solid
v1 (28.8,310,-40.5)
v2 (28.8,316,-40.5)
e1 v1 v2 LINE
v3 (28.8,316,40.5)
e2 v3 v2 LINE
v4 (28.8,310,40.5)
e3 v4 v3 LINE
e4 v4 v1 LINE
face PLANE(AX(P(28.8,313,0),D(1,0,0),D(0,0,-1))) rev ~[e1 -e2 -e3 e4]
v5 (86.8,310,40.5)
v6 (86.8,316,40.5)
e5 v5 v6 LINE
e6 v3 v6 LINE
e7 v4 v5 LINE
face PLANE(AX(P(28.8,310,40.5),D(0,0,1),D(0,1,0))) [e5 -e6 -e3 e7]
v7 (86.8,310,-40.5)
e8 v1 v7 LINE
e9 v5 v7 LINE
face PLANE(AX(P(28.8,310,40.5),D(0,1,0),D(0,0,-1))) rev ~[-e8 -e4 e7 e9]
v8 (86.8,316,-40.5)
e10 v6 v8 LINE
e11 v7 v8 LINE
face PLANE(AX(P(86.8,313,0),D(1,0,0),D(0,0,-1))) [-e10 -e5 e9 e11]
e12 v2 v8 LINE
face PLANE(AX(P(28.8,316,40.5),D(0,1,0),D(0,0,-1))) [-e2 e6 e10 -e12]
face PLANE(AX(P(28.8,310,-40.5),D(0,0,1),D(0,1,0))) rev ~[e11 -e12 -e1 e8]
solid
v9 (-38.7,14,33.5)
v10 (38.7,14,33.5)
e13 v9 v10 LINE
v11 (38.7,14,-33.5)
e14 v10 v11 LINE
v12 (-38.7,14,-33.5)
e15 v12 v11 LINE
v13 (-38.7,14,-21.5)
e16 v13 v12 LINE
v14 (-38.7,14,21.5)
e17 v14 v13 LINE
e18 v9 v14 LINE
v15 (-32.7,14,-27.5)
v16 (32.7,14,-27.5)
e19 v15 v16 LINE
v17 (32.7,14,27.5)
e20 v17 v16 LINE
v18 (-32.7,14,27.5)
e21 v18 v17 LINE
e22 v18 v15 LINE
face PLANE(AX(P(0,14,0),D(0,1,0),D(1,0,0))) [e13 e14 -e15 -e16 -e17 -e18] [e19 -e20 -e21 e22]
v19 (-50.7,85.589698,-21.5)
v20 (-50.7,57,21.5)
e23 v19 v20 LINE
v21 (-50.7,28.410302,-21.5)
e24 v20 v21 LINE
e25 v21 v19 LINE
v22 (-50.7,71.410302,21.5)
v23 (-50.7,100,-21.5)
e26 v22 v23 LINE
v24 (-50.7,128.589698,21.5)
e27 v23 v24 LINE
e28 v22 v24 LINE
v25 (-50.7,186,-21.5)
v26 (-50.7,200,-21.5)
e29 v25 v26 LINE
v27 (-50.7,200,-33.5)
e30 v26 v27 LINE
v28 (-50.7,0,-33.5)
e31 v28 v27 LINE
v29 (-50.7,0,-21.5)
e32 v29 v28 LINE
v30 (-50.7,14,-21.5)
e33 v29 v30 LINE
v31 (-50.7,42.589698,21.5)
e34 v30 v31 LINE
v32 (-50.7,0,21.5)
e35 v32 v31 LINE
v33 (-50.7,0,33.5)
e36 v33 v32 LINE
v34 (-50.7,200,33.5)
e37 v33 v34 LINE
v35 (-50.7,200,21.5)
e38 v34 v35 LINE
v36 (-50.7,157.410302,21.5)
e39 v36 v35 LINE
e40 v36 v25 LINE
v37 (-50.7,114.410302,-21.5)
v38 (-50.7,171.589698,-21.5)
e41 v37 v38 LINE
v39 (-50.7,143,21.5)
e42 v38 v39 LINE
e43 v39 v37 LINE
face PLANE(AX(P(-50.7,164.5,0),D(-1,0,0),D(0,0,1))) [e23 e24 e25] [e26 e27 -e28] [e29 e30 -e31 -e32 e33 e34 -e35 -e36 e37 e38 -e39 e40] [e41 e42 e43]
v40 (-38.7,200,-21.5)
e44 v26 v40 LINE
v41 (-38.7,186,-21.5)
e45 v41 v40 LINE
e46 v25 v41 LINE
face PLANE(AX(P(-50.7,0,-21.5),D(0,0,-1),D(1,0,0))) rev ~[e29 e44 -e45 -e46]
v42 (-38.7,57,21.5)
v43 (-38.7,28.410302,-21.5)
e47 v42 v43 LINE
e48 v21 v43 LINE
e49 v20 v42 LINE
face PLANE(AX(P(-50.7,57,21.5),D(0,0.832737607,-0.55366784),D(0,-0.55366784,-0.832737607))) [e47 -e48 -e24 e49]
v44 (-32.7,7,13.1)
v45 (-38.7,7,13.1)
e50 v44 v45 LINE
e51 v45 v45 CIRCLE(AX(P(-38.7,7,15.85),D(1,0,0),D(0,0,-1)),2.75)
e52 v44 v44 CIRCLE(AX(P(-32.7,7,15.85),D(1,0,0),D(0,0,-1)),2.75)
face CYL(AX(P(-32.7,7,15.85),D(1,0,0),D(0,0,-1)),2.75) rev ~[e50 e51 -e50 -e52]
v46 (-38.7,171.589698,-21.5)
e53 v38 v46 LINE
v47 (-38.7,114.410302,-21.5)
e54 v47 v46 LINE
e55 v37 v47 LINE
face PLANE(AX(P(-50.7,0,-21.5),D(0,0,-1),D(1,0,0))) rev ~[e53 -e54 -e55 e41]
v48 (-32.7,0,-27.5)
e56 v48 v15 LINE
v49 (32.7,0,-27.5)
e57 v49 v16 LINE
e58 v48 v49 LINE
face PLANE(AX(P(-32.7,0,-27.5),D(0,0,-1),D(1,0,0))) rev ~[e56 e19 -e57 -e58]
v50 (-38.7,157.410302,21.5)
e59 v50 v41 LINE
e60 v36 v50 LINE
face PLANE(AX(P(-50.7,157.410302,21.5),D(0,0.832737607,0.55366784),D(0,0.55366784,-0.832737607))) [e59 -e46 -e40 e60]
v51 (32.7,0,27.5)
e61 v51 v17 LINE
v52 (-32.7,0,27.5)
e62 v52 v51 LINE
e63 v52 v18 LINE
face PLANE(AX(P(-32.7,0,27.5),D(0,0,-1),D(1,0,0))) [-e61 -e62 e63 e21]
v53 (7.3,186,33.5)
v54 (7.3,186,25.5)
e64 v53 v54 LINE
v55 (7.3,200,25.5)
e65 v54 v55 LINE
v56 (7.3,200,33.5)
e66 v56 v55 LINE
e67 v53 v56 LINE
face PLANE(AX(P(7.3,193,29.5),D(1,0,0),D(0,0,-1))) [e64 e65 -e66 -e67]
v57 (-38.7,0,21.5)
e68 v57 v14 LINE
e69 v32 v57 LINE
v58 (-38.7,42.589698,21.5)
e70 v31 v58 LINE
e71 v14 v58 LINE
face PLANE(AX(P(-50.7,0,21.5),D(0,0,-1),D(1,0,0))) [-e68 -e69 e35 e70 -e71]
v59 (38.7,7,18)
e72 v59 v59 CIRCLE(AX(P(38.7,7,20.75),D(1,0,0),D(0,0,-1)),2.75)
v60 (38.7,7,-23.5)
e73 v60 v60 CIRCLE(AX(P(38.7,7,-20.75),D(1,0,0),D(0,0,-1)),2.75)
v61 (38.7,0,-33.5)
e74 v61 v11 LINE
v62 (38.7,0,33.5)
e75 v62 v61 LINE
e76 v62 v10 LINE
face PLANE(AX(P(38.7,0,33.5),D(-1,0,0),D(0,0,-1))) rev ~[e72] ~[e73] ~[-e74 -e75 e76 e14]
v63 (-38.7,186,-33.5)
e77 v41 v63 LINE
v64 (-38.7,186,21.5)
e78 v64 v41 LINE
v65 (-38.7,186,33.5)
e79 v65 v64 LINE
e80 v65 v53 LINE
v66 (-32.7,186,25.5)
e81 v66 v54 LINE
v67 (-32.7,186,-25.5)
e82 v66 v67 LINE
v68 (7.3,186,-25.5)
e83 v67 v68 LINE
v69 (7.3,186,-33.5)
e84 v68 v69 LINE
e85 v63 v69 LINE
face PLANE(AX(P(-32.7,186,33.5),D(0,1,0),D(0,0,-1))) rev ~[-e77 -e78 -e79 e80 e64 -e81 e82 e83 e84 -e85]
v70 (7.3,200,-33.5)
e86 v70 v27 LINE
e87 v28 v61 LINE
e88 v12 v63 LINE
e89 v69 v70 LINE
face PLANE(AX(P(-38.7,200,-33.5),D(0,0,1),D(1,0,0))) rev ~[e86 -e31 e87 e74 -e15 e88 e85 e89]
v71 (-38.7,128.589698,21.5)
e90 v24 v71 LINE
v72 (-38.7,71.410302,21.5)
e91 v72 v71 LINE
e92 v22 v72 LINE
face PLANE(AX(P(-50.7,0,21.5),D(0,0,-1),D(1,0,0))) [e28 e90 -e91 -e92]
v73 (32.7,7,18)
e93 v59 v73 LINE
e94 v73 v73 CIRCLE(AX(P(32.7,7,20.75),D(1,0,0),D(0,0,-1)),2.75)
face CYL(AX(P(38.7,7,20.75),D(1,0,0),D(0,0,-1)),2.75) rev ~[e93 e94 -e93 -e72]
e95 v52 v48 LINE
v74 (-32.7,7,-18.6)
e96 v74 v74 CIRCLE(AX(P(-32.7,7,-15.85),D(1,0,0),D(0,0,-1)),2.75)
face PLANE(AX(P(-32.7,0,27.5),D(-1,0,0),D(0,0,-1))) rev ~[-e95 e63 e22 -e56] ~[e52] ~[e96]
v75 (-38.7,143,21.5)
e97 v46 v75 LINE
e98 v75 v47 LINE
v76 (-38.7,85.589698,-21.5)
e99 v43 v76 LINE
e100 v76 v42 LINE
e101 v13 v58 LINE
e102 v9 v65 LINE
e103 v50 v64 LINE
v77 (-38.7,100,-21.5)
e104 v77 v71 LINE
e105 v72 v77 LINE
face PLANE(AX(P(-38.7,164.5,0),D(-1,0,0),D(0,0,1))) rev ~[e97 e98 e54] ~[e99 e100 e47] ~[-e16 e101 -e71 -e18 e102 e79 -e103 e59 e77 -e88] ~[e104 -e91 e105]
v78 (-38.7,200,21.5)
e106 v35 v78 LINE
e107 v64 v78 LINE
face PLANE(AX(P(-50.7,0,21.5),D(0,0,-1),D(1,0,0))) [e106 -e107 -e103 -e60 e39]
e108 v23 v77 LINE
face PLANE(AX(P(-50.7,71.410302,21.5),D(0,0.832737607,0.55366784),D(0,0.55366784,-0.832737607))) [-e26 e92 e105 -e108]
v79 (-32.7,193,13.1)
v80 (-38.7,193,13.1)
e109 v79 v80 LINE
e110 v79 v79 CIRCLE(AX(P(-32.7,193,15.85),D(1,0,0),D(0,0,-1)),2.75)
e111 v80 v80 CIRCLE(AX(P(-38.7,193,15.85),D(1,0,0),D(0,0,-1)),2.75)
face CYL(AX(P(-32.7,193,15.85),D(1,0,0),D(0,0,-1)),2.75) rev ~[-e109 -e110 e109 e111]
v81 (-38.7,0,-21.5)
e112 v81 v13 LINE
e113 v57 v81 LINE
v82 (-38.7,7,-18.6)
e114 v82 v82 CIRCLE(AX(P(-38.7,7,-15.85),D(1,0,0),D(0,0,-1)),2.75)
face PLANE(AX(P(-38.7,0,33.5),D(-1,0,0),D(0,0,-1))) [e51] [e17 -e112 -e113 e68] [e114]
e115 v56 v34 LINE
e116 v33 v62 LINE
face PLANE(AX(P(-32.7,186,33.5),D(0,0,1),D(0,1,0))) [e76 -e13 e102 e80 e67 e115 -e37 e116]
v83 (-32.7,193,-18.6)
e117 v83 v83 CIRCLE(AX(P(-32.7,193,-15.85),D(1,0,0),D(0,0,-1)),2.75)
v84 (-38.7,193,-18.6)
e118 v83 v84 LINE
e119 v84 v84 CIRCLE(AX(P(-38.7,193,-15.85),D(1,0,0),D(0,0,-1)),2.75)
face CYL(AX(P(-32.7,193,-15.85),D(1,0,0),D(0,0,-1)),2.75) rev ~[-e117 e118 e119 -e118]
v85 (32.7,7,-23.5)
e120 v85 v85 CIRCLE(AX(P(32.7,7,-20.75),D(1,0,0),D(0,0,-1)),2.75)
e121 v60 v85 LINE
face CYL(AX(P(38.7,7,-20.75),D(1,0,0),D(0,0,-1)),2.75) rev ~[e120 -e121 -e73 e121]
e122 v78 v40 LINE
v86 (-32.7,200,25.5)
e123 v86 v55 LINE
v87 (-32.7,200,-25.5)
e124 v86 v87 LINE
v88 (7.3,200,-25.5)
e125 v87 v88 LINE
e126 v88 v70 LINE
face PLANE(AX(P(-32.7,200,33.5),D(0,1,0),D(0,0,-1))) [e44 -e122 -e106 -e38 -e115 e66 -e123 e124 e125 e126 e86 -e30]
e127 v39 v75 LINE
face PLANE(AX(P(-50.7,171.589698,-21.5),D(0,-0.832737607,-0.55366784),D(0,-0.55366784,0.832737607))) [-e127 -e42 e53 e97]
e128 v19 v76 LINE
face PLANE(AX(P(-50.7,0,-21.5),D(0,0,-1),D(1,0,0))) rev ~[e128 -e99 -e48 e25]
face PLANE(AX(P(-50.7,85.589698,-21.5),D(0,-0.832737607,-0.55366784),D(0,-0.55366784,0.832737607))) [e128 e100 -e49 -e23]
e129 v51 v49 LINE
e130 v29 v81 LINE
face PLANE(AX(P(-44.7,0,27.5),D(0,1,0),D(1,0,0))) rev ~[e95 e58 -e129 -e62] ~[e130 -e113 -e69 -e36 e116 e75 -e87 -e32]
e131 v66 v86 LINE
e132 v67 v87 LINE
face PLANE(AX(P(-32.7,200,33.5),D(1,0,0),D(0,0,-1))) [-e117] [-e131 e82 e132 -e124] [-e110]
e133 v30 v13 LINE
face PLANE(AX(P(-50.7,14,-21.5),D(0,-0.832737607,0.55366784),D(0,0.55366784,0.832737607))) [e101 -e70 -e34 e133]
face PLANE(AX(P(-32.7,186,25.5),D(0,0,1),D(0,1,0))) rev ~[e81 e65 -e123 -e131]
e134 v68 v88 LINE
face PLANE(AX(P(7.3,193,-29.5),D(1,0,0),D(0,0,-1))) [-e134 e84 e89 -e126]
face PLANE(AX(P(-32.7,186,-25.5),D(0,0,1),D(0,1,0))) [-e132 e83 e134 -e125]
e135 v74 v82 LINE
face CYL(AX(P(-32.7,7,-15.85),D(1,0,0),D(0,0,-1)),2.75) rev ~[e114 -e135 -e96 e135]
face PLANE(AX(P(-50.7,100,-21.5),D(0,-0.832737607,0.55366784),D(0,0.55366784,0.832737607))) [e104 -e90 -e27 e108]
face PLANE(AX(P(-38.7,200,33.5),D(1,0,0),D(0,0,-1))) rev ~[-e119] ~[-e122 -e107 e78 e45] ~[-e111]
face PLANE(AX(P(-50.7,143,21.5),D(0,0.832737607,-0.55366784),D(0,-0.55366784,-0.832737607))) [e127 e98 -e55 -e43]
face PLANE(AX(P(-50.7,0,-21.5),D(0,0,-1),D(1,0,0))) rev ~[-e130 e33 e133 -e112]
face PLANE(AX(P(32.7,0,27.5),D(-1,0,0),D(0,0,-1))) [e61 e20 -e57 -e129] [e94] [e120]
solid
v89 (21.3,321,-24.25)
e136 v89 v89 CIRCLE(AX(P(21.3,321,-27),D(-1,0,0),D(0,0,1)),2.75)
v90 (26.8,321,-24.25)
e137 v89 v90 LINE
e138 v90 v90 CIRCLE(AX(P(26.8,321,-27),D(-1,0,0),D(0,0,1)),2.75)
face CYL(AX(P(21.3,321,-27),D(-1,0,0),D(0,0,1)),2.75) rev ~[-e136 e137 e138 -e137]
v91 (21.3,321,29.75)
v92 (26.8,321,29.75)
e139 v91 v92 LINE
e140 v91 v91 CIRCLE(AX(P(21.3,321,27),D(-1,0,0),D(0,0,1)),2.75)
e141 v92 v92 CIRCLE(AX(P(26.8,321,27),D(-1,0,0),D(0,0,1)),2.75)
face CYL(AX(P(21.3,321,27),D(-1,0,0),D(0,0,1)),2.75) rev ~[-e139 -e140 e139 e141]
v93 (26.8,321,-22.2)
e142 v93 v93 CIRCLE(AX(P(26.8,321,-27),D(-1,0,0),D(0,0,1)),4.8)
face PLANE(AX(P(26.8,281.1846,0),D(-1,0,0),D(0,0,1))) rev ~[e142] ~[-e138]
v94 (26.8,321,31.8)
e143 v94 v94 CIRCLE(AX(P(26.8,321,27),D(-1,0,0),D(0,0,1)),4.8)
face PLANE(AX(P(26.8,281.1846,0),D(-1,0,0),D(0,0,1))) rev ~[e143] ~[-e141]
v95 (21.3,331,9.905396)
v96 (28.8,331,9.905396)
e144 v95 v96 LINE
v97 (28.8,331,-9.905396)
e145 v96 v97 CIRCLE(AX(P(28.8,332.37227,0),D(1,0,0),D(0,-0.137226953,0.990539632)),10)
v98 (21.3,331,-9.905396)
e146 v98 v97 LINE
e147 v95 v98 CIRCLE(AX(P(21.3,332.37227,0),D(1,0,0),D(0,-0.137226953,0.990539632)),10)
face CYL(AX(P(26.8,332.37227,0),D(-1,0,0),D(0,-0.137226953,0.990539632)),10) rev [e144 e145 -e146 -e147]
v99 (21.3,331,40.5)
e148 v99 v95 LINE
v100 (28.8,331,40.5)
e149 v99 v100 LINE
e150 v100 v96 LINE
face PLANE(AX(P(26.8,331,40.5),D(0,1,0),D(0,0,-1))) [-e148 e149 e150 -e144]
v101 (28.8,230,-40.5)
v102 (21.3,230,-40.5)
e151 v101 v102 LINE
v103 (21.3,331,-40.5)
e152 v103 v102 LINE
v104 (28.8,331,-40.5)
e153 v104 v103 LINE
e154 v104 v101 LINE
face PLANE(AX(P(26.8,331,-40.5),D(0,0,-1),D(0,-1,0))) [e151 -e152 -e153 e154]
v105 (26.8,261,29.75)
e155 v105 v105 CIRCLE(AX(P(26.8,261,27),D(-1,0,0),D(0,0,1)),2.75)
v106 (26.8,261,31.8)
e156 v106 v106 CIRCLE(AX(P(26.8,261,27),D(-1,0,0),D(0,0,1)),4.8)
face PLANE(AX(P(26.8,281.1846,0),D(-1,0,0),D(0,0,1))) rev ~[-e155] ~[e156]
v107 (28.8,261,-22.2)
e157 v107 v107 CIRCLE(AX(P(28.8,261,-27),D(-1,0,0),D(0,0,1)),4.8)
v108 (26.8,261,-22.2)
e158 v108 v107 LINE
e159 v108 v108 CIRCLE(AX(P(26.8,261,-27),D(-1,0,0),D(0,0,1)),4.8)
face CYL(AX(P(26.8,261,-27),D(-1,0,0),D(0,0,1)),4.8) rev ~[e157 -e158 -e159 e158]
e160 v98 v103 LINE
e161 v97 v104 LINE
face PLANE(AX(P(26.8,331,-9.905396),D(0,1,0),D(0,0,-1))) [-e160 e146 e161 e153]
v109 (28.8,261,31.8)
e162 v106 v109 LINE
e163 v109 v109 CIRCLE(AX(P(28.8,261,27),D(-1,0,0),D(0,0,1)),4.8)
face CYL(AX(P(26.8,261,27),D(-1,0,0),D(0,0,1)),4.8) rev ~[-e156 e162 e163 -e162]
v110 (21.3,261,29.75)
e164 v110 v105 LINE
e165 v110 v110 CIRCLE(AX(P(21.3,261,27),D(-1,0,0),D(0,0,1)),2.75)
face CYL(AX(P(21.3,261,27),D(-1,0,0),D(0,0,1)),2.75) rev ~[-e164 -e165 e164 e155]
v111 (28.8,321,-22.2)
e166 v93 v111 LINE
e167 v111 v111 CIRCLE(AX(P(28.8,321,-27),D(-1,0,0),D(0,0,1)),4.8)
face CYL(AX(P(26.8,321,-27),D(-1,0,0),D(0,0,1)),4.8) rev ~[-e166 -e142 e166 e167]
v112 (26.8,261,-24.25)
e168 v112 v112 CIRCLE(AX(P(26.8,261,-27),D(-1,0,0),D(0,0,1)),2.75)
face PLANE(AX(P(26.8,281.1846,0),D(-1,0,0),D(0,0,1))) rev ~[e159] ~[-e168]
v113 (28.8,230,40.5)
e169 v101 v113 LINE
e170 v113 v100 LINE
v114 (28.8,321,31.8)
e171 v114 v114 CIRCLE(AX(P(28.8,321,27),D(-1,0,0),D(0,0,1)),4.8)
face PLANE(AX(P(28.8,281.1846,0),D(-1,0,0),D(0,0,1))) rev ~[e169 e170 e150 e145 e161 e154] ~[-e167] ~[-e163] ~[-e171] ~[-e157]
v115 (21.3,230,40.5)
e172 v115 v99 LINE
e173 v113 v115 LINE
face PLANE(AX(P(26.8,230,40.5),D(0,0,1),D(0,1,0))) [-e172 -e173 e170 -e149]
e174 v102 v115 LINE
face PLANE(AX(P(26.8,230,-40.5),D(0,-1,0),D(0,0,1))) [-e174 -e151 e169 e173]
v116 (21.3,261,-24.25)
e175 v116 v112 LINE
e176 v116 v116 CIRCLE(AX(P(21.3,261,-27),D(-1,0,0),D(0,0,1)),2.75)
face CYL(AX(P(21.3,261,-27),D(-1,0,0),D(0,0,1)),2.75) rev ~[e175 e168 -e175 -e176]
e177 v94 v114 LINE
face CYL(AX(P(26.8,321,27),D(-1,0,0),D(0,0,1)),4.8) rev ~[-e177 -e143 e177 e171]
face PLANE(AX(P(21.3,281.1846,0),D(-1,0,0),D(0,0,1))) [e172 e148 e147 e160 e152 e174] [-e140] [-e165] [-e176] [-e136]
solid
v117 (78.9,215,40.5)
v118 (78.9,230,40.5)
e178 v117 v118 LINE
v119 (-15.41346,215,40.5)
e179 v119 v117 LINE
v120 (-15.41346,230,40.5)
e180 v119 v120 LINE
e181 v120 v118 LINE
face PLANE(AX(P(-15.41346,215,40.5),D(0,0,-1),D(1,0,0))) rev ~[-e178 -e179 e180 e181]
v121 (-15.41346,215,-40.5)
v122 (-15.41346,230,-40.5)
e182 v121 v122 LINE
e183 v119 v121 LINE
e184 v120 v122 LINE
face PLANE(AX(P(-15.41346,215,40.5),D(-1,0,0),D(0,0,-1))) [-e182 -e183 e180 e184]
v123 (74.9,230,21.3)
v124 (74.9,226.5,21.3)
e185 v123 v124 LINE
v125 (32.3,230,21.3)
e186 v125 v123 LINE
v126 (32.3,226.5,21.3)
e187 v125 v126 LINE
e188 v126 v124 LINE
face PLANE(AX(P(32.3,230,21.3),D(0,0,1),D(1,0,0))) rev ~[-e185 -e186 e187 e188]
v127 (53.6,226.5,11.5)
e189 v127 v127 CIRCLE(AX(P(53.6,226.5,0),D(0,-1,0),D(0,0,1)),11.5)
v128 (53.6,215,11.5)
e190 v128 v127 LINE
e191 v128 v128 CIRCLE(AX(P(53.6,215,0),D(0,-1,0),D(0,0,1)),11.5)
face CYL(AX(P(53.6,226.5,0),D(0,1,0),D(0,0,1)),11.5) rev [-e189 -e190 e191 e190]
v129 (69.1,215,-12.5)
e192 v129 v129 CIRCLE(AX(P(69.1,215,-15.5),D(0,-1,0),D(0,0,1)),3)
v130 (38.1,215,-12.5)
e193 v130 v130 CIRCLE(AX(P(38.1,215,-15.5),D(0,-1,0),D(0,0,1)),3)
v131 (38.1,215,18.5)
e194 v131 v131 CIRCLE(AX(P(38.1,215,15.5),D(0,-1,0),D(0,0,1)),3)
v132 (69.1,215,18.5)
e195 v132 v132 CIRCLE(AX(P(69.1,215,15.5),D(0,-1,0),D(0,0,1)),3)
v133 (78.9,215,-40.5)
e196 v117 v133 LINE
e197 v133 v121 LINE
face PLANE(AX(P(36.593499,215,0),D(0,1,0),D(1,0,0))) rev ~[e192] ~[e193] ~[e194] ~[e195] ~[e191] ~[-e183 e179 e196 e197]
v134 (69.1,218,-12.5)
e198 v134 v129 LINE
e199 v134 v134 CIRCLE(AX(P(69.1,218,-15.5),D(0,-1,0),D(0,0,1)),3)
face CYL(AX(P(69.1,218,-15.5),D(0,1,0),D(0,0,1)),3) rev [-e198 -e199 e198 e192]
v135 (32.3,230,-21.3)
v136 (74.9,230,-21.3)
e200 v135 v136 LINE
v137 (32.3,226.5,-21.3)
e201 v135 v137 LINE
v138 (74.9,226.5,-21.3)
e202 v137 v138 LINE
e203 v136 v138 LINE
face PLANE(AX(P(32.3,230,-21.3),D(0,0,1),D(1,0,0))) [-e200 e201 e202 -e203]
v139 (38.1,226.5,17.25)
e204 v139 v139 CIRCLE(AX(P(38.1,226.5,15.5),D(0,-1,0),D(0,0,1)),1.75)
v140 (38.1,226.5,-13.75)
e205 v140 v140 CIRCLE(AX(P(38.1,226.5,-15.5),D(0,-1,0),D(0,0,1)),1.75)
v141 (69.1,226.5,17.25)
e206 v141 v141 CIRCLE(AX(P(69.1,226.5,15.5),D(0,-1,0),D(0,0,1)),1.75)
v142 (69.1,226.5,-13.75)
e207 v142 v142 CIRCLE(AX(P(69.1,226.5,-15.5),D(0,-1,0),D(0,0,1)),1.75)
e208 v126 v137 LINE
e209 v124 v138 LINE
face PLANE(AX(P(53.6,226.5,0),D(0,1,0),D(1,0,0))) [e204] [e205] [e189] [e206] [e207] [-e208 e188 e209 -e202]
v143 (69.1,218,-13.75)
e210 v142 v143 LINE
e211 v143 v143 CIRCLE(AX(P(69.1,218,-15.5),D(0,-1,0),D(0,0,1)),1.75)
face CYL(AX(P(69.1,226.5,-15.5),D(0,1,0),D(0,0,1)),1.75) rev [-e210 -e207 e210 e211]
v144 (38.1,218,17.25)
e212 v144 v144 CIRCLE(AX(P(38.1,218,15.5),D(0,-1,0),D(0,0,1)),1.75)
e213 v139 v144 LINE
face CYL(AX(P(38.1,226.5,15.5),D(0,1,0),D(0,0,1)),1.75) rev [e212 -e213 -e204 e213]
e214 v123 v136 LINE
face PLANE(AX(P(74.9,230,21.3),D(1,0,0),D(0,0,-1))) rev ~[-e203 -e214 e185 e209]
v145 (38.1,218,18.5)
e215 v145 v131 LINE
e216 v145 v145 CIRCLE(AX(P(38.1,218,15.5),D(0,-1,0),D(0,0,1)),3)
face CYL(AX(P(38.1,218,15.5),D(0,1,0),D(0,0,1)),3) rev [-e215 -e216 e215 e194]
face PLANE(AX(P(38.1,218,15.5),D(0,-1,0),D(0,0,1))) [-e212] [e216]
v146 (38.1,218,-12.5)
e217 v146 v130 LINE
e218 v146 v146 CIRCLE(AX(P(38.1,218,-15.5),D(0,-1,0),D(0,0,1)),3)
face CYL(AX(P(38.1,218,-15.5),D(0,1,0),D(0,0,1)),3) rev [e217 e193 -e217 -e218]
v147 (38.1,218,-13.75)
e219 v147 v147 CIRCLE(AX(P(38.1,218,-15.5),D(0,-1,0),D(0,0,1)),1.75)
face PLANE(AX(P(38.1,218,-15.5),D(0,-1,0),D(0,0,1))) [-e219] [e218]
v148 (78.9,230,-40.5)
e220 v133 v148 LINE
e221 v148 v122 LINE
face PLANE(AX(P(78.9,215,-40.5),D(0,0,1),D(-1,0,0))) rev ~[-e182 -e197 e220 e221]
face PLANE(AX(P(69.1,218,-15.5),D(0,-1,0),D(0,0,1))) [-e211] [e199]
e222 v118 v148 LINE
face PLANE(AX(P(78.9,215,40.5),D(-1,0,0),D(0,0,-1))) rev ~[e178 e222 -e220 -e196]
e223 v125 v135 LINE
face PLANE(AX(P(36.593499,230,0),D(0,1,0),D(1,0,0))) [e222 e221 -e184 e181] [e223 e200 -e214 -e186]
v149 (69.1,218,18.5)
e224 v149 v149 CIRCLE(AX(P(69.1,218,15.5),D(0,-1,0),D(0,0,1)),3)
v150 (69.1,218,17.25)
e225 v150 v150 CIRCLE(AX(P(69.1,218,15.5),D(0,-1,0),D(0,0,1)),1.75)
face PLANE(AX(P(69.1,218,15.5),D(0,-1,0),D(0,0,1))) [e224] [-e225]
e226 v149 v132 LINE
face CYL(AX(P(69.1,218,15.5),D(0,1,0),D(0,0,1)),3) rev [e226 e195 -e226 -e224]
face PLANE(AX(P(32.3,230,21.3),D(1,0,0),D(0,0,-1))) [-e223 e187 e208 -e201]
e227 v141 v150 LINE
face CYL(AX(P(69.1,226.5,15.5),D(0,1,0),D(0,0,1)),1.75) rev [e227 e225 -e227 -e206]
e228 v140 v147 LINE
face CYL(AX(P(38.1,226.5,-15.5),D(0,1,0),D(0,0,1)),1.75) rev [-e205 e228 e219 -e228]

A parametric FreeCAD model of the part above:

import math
import FreeCAD as App
import Part
import Sketcher

V = App.Vector

doc = App.newDocument("Part")
params = doc.addObject("Spreadsheet::Sheet", "Params")
for row, (alias, value) in enumerate([
    ("sketch1_height", "67 mm"),
    ("sketch1_height2", "55 mm"),
    ("sketch1_width", "77.4 mm"),
    ("sketch1_width2", "65.4 mm"),
    ("pad1_length", "14 mm"),
    ("sketch2_width", "12 mm"),
    ("pad2_length", "200 mm"),
    ("sketch3_width", "6 mm"),
    ("sketch3_height", "67 mm"),
    ("pad3_length", "14 mm"),
    ("pad4_length", "12 mm"),
    ("sketch5_diameter", "5.5 mm"),
    ("pocket1_length", "6 mm"),
    ("sketch6_diameter", "5.5 mm"),
    ("pocket2_length", "6 mm"),
    ("sketch7_diameter", "5.5 mm"),
    ("sketch8_width", "14 mm"),
    ("sketch8_height", "8 mm"),
    ("pad5_length", "40 mm"),
    ("sketch9_height", "81 mm"),
    ("pad6_length", "15 mm"),
    ("sketch10_width", "42.6 mm"),
    ("pocket4_length", "3.5 mm"),
    ("sketch11_diameter", "23 mm"),
    ("sketch11_diameter2", "3.5 mm"),
    ("pocket5_length", "11.5 mm"),
    ("sketch12_diameter", "6 mm"),
    ("sketch12_diameter2", "23 mm"),
    ("sketch12_diameter3", "3.5 mm"),
    ("pocket6_length", "3 mm"),
    ("sketch13_radius", "10 mm"),
    ("sketch13_diameter", "5.5 mm"),
    ("sketch13_width", "101 mm"),
    ("sketch13_height", "81 mm"),
    ("pad7_length", "5.5 mm"),
    ("sketch14_radius", "10 mm"),
    ("sketch14_diameter", "9.6 mm"),
    ("sketch14_width", "101 mm"),
    ("sketch14_height", "81 mm"),
    ("pad8_length", "2 mm"),
    ("sketch15_width", "6 mm"),
    ("sketch15_height", "81 mm"),
    ("pad9_length", "58 mm"),
], start=1):
    params.set(f"A{row}", alias)
    params.set(f"B{row}", "=" + value)
    params.setAlias(f"B{row}", alias)

body = doc.addObject("PartDesign::Body", "Body")

# Sketch on XZ plane
sketch1 = doc.addObject("Sketcher::SketchObject", "Sketch")
body.addObject(sketch1)
sketch1.AttachmentSupport = (doc.XZ_Plane, [""])
sketch1.MapMode = "FlatFace"
sketch1.addGeometry([
    Part.LineSegment(V(-38.7, -33.5, 0), V(-38.7, 33.5, 0)),  # 0
    Part.LineSegment(V(-38.7, 33.5, 0), V(38.7, 33.5, 0)),  # 1
    Part.LineSegment(V(38.7, 33.5, 0), V(38.7, -33.5, 0)),  # 2
    Part.LineSegment(V(38.7, -33.5, 0), V(-38.7, -33.5, 0)),  # 3
    Part.LineSegment(V(32.7, 27.5, 0), V(-32.7, 27.5, 0)),  # 4
    Part.LineSegment(V(-32.7, 27.5, 0), V(-32.7, -27.5, 0)),  # 5
    Part.LineSegment(V(-32.7, -27.5, 0), V(32.7, -27.5, 0)),  # 6
    Part.LineSegment(V(32.7, -27.5, 0), V(32.7, 27.5, 0)),  # 7
], False)
sketch1.addConstraint([
    Sketcher.Constraint("Coincident", 0, 2, 1, 1),
    Sketcher.Constraint("Coincident", 1, 2, 2, 1),
    Sketcher.Constraint("Coincident", 2, 2, 3, 1),
    Sketcher.Constraint("Coincident", 3, 2, 0, 1),
    Sketcher.Constraint("Coincident", 4, 2, 5, 1),
    Sketcher.Constraint("Coincident", 5, 2, 6, 1),
    Sketcher.Constraint("Coincident", 6, 2, 7, 1),
    Sketcher.Constraint("Coincident", 7, 2, 4, 1),
    Sketcher.Constraint("Vertical", 0),
    Sketcher.Constraint("Horizontal", 1),
    Sketcher.Constraint("Vertical", 2),
    Sketcher.Constraint("Horizontal", 3),
    Sketcher.Constraint("Horizontal", 4),
    Sketcher.Constraint("Vertical", 5),
    Sketcher.Constraint("Horizontal", 6),
    Sketcher.Constraint("Vertical", 7),
    Sketcher.Constraint("Symmetric", 0, 2, 2, 2, -1, 1),
    Sketcher.Constraint("Symmetric", 4, 2, 6, 2, -1, 1),
    Sketcher.Constraint("DistanceY", 0, 1, 0, 2, 67.0),
    Sketcher.Constraint("DistanceY", 5, 2, 5, 1, 55.0),
    Sketcher.Constraint("DistanceX", 1, 1, 1, 2, 77.4),
    Sketcher.Constraint("DistanceX", 4, 2, 4, 1, 65.4),
])
sketch1.setExpression("Constraints[18]", "Params.sketch1_height")
sketch1.setExpression("Constraints[19]", "Params.sketch1_height2")
sketch1.setExpression("Constraints[20]", "Params.sketch1_width")
sketch1.setExpression("Constraints[21]", "Params.sketch1_width2")
pad1 = doc.addObject("PartDesign::Pad", "Pad")
body.addObject(pad1)
pad1.Profile = sketch1
pad1.setExpression("Length", "Params.pad1_length")
pad1.Reversed = True

# Sketch on XZ plane
sketch2 = doc.addObject("Sketcher::SketchObject", "Sketch001")
body.addObject(sketch2)
sketch2.AttachmentSupport = (doc.XZ_Plane, [""])
sketch2.MapMode = "FlatFace"
sketch2.addGeometry([
    Part.LineSegment(V(-50.7, 21.5, 0), V(-50.7, 33.5, 0)),  # 0
    Part.LineSegment(V(-50.7, 33.5, 0), V(-38.7, 33.5, 0)),  # 1
    Part.LineSegment(V(-38.7, 33.5, 0), V(-38.7, 21.5, 0)),  # 2
    Part.LineSegment(V(-38.7, 21.5, 0), V(-50.7, 21.5, 0)),  # 3
    Part.LineSegment(V(-50.7, -33.5, 0), V(-50.7, -21.5, 0)),  # 4
    Part.LineSegment(V(-50.7, -21.5, 0), V(-38.7, -21.5, 0)),  # 5
    Part.LineSegment(V(-38.7, -21.5, 0), V(-38.7, -33.5, 0)),  # 6
    Part.LineSegment(V(-38.7, -33.5, 0), V(-50.7, -33.5, 0)),  # 7
], False)
sketch2.addConstraint([
    Sketcher.Constraint("Coincident", 0, 2, 1, 1),
    Sketcher.Constraint("Coincident", 1, 2, 2, 1),
    Sketcher.Constraint("Coincident", 2, 2, 3, 1),
    Sketcher.Constraint("Coincident", 3, 2, 0, 1),
    Sketcher.Constraint("Coincident", 4, 2, 5, 1),
    Sketcher.Constraint("Coincident", 5, 2, 6, 1),
    Sketcher.Constraint("Coincident", 6, 2, 7, 1),
    Sketcher.Constraint("Coincident", 7, 2, 4, 1),
    Sketcher.Constraint("Vertical", 0),
    Sketcher.Constraint("Horizontal", 1),
    Sketcher.Constraint("Vertical", 2),
    Sketcher.Constraint("Horizontal", 3),
    Sketcher.Constraint("Vertical", 4),
    Sketcher.Constraint("Horizontal", 5),
    Sketcher.Constraint("Vertical", 6),
    Sketcher.Constraint("Horizontal", 7),
    Sketcher.Constraint("Symmetric", 3, 2, 4, 2, -1),
    Sketcher.Constraint("Symmetric", 1, 2, 6, 2, -1),
    Sketcher.Constraint("Equal", 7, 0),
    Sketcher.Constraint("DistanceX", 1, 1, 1, 2, 12.0),
    Sketcher.Constraint("DistanceY", 4, 2, 3, 2, 43.0),
    Sketcher.Constraint("DistanceX", 0, 2, -1, 1, 50.7),
])
sketch2.setExpression("Constraints[19]", "Params.sketch2_width")
pad2 = doc.addObject("PartDesign::Pad", "Pad001")
body.addObject(pad2)
pad2.Profile = sketch2
pad2.setExpression("Length", "Params.pad2_length")
pad2.Reversed = True

# Sketch on XZ plane
sketch3 = doc.addObject("Sketcher::SketchObject", "Sketch002")
body.addObject(sketch3)
sketch3.AttachmentSupport = (doc.XZ_Plane, [""])
sketch3.MapMode = "FlatFace"
sketch3.AttachmentOffset = App.Placement(V(0, 0, -200), App.Rotation())
sketch3.addGeometry([
    Part.LineSegment(V(-38.7, -33.5, 0), V(-38.7, 33.5, 0)),
    Part.LineSegment(V(-38.7, 33.5, 0), V(-32.7, 33.5, 0)),
    Part.LineSegment(V(-32.7, 33.5, 0), V(-32.7, -33.5, 0)),
    Part.LineSegment(V(-32.7, -33.5, 0), V(-38.7, -33.5, 0)),
], False)
sketch3.addConstraint([
    Sketcher.Constraint("Coincident", 0, 2, 1, 1),
    Sketcher.Constraint("Coincident", 1, 2, 2, 1),
    Sketcher.Constraint("Coincident", 2, 2, 3, 1),
    Sketcher.Constraint("Coincident", 3, 2, 0, 1),
    Sketcher.Constraint("Vertical", 0),
    Sketcher.Constraint("Horizontal", 1),
    Sketcher.Constraint("Vertical", 2),
    Sketcher.Constraint("Horizontal", 3),
    Sketcher.Constraint("DistanceX", 1, 1, 1, 2, 6.0),
    Sketcher.Constraint("DistanceY", 0, 1, 0, 2, 67.0),
    Sketcher.Constraint("DistanceX", 0, 2, -1, 1, 38.7),
    Sketcher.Constraint("DistanceY", -1, 1, 0, 2, 33.5),
])
sketch3.setExpression("Constraints[8]", "Params.sketch3_width")
sketch3.setExpression("Constraints[9]", "Params.sketch3_height")
pad3 = doc.addObject("PartDesign::Pad", "Pad002")
body.addObject(pad3)
pad3.Profile = sketch3
pad3.setExpression("Length", "Params.pad3_length")

# Sketch on YZ plane
sketch4 = doc.addObject("Sketcher::SketchObject", "Sketch003")
body.addObject(sketch4)
sketch4.AttachmentSupport = (doc.YZ_Plane, [""])
sketch4.MapMode = "FlatFace"
sketch4.AttachmentOffset = App.Placement(V(0, 0, -50.7), App.Rotation())
sketch4.addGeometry([
    Part.LineSegment(V(157.410302, 21.5, 0), V(186, -21.5, 0)),  # 0
    Part.LineSegment(V(186, -21.5, 0), V(171.589698, -21.5, 0)),  # 1
    Part.LineSegment(V(171.589698, -21.5, 0), V(143, 21.5, 0)),  # 2
    Part.LineSegment(V(143, 21.5, 0), V(157.410302, 21.5, 0)),  # 3
    Part.LineSegment(V(128.589698, 21.5, 0), V(143, 21.5, 0)),  # 4
    Part.LineSegment(V(143, 21.5, 0), V(114.410302, -21.5, 0)),  # 5
    Part.LineSegment(V(114.410302, -21.5, 0), V(100, -21.5, 0)),  # 6
    Part.LineSegment(V(100, -21.5, 0), V(128.589698, 21.5, 0)),  # 7
    Part.LineSegment(V(71.410302, 21.5, 0), V(100, -21.5, 0)),  # 8
    Part.LineSegment(V(100, -21.5, 0), V(85.589698, -21.5, 0)),  # 9
    Part.LineSegment(V(85.589698, -21.5, 0), V(57, 21.5, 0)),  # 10
    Part.LineSegment(V(57, 21.5, 0), V(71.410302, 21.5, 0)),  # 11
    Part.LineSegment(V(42.589698, 21.5, 0), V(57, 21.5, 0)),  # 12
    Part.LineSegment(V(57, 21.5, 0), V(28.410302, -21.5, 0)),  # 13
    Part.LineSegment(V(28.410302, -21.5, 0), V(14, -21.5, 0)),  # 14
    Part.LineSegment(V(14, -21.5, 0), V(42.589698, 21.5, 0)),  # 15
], False)
sketch4.addConstraint([
    Sketcher.Constraint("Coincident", 0, 2, 1, 1),
    Sketcher.Constraint("Coincident", 1, 2, 2, 1),
    Sketcher.Constraint("Coincident", 2, 2, 3, 1),
    Sketcher.Constraint("Coincident", 3, 2, 0, 1),
    Sketcher.Constraint("Coincident", 4, 2, 5, 1),
    Sketcher.Constraint("Coincident", 5, 2, 6, 1),
    Sketcher.Constraint("Coincident", 6, 2, 7, 1),
    Sketcher.Constraint("Coincident", 7, 2, 4, 1),
    Sketcher.Constraint("Coincident", 8, 2, 9, 1),
    Sketcher.Constraint("Coincident", 9, 2, 10, 1),
    Sketcher.Constraint("Coincident", 10, 2, 11, 1),
    Sketcher.Constraint("Coincident", 11, 2, 8, 1),
    Sketcher.Constraint("Coincident", 12, 2, 13, 1),
    Sketcher.Constraint("Coincident", 13, 2, 14, 1),
    Sketcher.Constraint("Coincident", 14, 2, 15, 1),
    Sketcher.Constraint("Coincident", 15, 2, 12, 1),
    Sketcher.Constraint("Horizontal", 1),
    Sketcher.Constraint("Horizontal", 3),
    Sketcher.Constraint("Horizontal", 4),
    Sketcher.Constraint("Horizontal", 6),
    Sketcher.Constraint("Horizontal", 9),
    Sketcher.Constraint("Horizontal", 11),
    Sketcher.Constraint("Horizontal", 12),
    Sketcher.Constraint("Horizontal", 14),
    Sketcher.Constraint("Coincident", 4, 2, 2, 2),
    Sketcher.Constraint("Coincident", 8, 2, 6, 2),
    Sketcher.Constraint("Coincident", 12, 2, 10, 2),
    Sketcher.Constraint("Parallel", 0, 2),
    Sketcher.Constraint("Parallel", 5, 7),
    Sketcher.Constraint("Parallel", 2, 8),
    Sketcher.Constraint("Parallel", 8, 10),
    Sketcher.Constraint("Parallel", 7, 13),
    Sketcher.Constraint("Parallel", 13, 15),
    Sketcher.Constraint("Horizontal", 1, 2, 5, 2),
    Sketcher.Constraint("Horizontal", 7, 2, 10, 2),
    Sketcher.Constraint("Horizontal", 9, 2, 13, 2),
    Sketcher.Constraint("Equal", 3, 4),
    Sketcher.Constraint("Equal", 6, 9),
    Sketcher.Constraint("Equal", 11, 12),
    Sketcher.Constraint("Equal", 2, 5),
    Sketcher.Constraint("DistanceX", -1, 1, 0, 2, 186.0),
    Sketcher.Constraint("DistanceX", -1, 1, 2, 2, 143.0),
    Sketcher.Constraint("DistanceY", 1, 2, 2, 2, 43.0),
    Sketcher.Constraint("DistanceY", 0, 2, -1, 1, 21.5),
    Sketcher.Constraint("DistanceX", 1, 2, 1, 1, 14.410302),
])
pad4 = doc.addObject("PartDesign::Pad", "Pad003")
body.addObject(pad4)
pad4.Profile = sketch4
pad4.setExpression("Length", "Params.pad4_length")

# Sketch on YZ plane
sketch5 = doc.addObject("Sketcher::SketchObject", "Sketch004")
body.addObject(sketch5)
sketch5.AttachmentSupport = (doc.YZ_Plane, [""])
sketch5.MapMode = "FlatFace"
sketch5.AttachmentOffset = App.Placement(V(0, 0, 38.7), App.Rotation())
sketch5.addGeometry([
    Part.Circle(V(7, 20.75, 0), V(0, 0, 1), 2.75),
    Part.Circle(V(7, -20.75, 0), V(0, 0, 1), 2.75),
], False)
sketch5.addConstraint([
    Sketcher.Constraint("Equal", 0, 1),
    Sketcher.Constraint("Symmetric", 0, 3, 1, 3, -1),
    Sketcher.Constraint("Diameter", 0, 5.5),
    Sketcher.Constraint("DistanceX", -1, 1, 0, 3, 7.0),
    Sketcher.Constraint("DistanceY", 1, 3, 0, 3, 41.5),
])
sketch5.setExpression("Constraints[2]", "Params.sketch5_diameter")
pocket1 = doc.addObject("PartDesign::Pocket", "Pocket")
body.addObject(pocket1)
pocket1.Profile = sketch5
pocket1.setExpression("Length", "Params.pocket1_length")

# Sketch on YZ plane
sketch6 = doc.addObject("Sketcher::SketchObject", "Sketch005")
body.addObject(sketch6)
sketch6.AttachmentSupport = (doc.YZ_Plane, [""])
sketch6.MapMode = "FlatFace"
sketch6.AttachmentOffset = App.Placement(V(0, 0, -32.7), App.Rotation())
sketch6.addGeometry([
    Part.Circle(V(7, -15.85, 0), V(0, 0, 1), 2.75),
    Part.Circle(V(7, 15.85, 0), V(0, 0, 1), 2.75),
], False)
sketch6.addConstraint([
    Sketcher.Constraint("Equal", 0, 1),
    Sketcher.Constraint("Symmetric", 0, 3, 1, 3, -1),
    Sketcher.Constraint("Diameter", 0, 5.5),
    Sketcher.Constraint("DistanceX", -1, 1, 0, 3, 7.0),
    Sketcher.Constraint("DistanceY", 0, 3, 1, 3, 31.7),
])
sketch6.setExpression("Constraints[2]", "Params.sketch6_diameter")
pocket2 = doc.addObject("PartDesign::Pocket", "Pocket001")
body.addObject(pocket2)
pocket2.Profile = sketch6
pocket2.setExpression("Length", "Params.pocket2_length")

# Sketch on YZ plane
sketch7 = doc.addObject("Sketcher::SketchObject", "Sketch006")
body.addObject(sketch7)
sketch7.AttachmentSupport = (doc.YZ_Plane, [""])
sketch7.MapMode = "FlatFace"
sketch7.AttachmentOffset = App.Placement(V(0, 0, -32.7), App.Rotation())
sketch7.addGeometry([
    Part.Circle(V(193, -15.85, 0), V(0, 0, 1), 2.75),
    Part.Circle(V(193, 15.85, 0), V(0, 0, 1), 2.75),
], False)
sketch7.addConstraint([
    Sketcher.Constraint("Equal", 0, 1),
    Sketcher.Constraint("Symmetric", 0, 3, 1, 3, -1),
    Sketcher.Constraint("Diameter", 0, 5.5),
    Sketcher.Constraint("DistanceX", -1, 1, 0, 3, 193.0),
    Sketcher.Constraint("DistanceY", 0, 3, 1, 3, 31.7),
])
sketch7.setExpression("Constraints[2]", "Params.sketch7_diameter")
pocket3 = doc.addObject("PartDesign::Pocket", "Pocket002")
body.addObject(pocket3)
pocket3.Profile = sketch7
pocket3.Type = "ThroughAll"

# Sketch on YZ plane
sketch8 = doc.addObject("Sketcher::SketchObject", "Sketch007")
body.addObject(sketch8)
sketch8.AttachmentSupport = (doc.YZ_Plane, [""])
sketch8.MapMode = "FlatFace"
sketch8.AttachmentOffset = App.Placement(V(0, 0, -32.7), App.Rotation())
sketch8.addGeometry([
    Part.LineSegment(V(200, 33.5, 0), V(186, 33.5, 0)),  # 0
    Part.LineSegment(V(186, 33.5, 0), V(186, 25.5, 0)),  # 1
    Part.LineSegment(V(186, 25.5, 0), V(200, 25.5, 0)),  # 2
    Part.LineSegment(V(200, 25.5, 0), V(200, 33.5, 0)),  # 3
    Part.LineSegment(V(200, -25.5, 0), V(186, -25.5, 0)),  # 4
    Part.LineSegment(V(186, -25.5, 0), V(186, -33.5, 0)),  # 5
    Part.LineSegment(V(186, -33.5, 0), V(200, -33.5, 0)),  # 6
    Part.LineSegment(V(200, -33.5, 0), V(200, -25.5, 0)),  # 7
], False)
sketch8.addConstraint([
    Sketcher.Constraint("Coincident", 0, 2, 1, 1),
    Sketcher.Constraint("Coincident", 1, 2, 2, 1),
    Sketcher.Constraint("Coincident", 2, 2, 3, 1),
    Sketcher.Constraint("Coincident", 3, 2, 0, 1),
    Sketcher.Constraint("Coincident", 4, 2, 5, 1),
    Sketcher.Constraint("Coincident", 5, 2, 6, 1),
    Sketcher.Constraint("Coincident", 6, 2, 7, 1),
    Sketcher.Constraint("Coincident", 7, 2, 4, 1),
    Sketcher.Constraint("Horizontal", 0),
    Sketcher.Constraint("Vertical", 1),
    Sketcher.Constraint("Horizontal", 2),
    Sketcher.Constraint("Vertical", 3),
    Sketcher.Constraint("Horizontal", 4),
    Sketcher.Constraint("Vertical", 5),
    Sketcher.Constraint("Horizontal", 6),
    Sketcher.Constraint("Vertical", 7),
    Sketcher.Constraint("Symmetric", 1, 2, 4, 2, -1),
    Sketcher.Constraint("Symmetric", 3, 2, 6, 2, -1),
    Sketcher.Constraint("DistanceX", 0, 2, 0, 1, 14.0),
    Sketcher.Constraint("DistanceY", 1, 2, 1, 1, 8.0),
    Sketcher.Constraint("DistanceX", -1, 1, 0, 2, 186.0),
    Sketcher.Constraint("DistanceY", 4, 2, 1, 2, 51.0),
])
sketch8.setExpression("Constraints[18]", "Params.sketch8_width")
sketch8.setExpression("Constraints[19]", "Params.sketch8_height")
pad5 = doc.addObject("PartDesign::Pad", "Pad004")
body.addObject(pad5)
pad5.Profile = sketch8
pad5.setExpression("Length", "Params.pad5_length")
body2 = doc.addObject("PartDesign::Body", "Body001")

# Sketch on XZ plane
sketch9 = doc.addObject("Sketcher::SketchObject", "Sketch008")
body2.addObject(sketch9)
sketch9.AttachmentSupport = (doc.getObject("XZ_Plane001"), [""])
sketch9.MapMode = "FlatFace"
sketch9.AttachmentOffset = App.Placement(V(0, 0, -215), App.Rotation())
sketch9.addGeometry([
    Part.LineSegment(V(-15.41346, -40.5, 0), V(-15.41346, 40.5, 0)),
    Part.LineSegment(V(-15.41346, 40.5, 0), V(78.9, 40.5, 0)),
    Part.LineSegment(V(78.9, 40.5, 0), V(78.9, -40.5, 0)),
    Part.LineSegment(V(78.9, -40.5, 0), V(-15.41346, -40.5, 0)),
], False)
sketch9.addConstraint([
    Sketcher.Constraint("Coincident", 0, 2, 1, 1),
    Sketcher.Constraint("Coincident", 1, 2, 2, 1),
    Sketcher.Constraint("Coincident", 2, 2, 3, 1),
    Sketcher.Constraint("Coincident", 3, 2, 0, 1),
    Sketcher.Constraint("Vertical", 0),
    Sketcher.Constraint("Horizontal", 1),
    Sketcher.Constraint("Vertical", 2),
    Sketcher.Constraint("Horizontal", 3),
    Sketcher.Constraint("DistanceY", 0, 1, 0, 2, 81.0),
    Sketcher.Constraint("DistanceY", -1, 1, 0, 2, 40.5),
    Sketcher.Constraint("DistanceX", -1, 1, 1, 2, 78.9),
    Sketcher.Constraint("DistanceX", 1, 1, 1, 2, 94.31346),
])
sketch9.setExpression("Constraints[8]", "Params.sketch9_height")
pad6 = doc.addObject("PartDesign::Pad", "Pad005")
body2.addObject(pad6)
pad6.Profile = sketch9
pad6.setExpression("Length", "Params.pad6_length")
pad6.Reversed = True

# Sketch on XZ plane
sketch10 = doc.addObject("Sketcher::SketchObject", "Sketch009")
body2.addObject(sketch10)
sketch10.AttachmentSupport = (doc.getObject("XZ_Plane001"), [""])
sketch10.MapMode = "FlatFace"
sketch10.AttachmentOffset = App.Placement(V(0, 0, -230), App.Rotation())
sketch10.addGeometry([
    Part.LineSegment(V(32.3, -21.3, 0), V(32.3, 21.3, 0)),
    Part.LineSegment(V(32.3, 21.3, 0), V(74.9, 21.3, 0)),
    Part.LineSegment(V(74.9, 21.3, 0), V(74.9, -21.3, 0)),
    Part.LineSegment(V(74.9, -21.3, 0), V(32.3, -21.3, 0)),
], False)
sketch10.addConstraint([
    Sketcher.Constraint("Coincident", 0, 2, 1, 1),
    Sketcher.Constraint("Coincident", 1, 2, 2, 1),
    Sketcher.Constraint("Coincident", 2, 2, 3, 1),
    Sketcher.Constraint("Coincident", 3, 2, 0, 1),
    Sketcher.Constraint("Vertical", 0),
    Sketcher.Constraint("Horizontal", 1),
    Sketcher.Constraint("Vertical", 2),
    Sketcher.Constraint("Horizontal", 3),
    Sketcher.Constraint("Equal", 3, 0),
    Sketcher.Constraint("DistanceX", 1, 1, 1, 2, 42.6),
    Sketcher.Constraint("DistanceX", -1, 1, 0, 2, 32.3),
    Sketcher.Constraint("DistanceY", -1, 1, 0, 2, 21.3),
])
sketch10.setExpression("Constraints[9]", "Params.sketch10_width")
pocket4 = doc.addObject("PartDesign::Pocket", "Pocket003")
body2.addObject(pocket4)
pocket4.Profile = sketch10
pocket4.setExpression("Length", "Params.pocket4_length")
pocket4.Reversed = True

# Sketch on XZ plane
sketch11 = doc.addObject("Sketcher::SketchObject", "Sketch010")
body2.addObject(sketch11)
sketch11.AttachmentSupport = (doc.getObject("XZ_Plane001"), [""])
sketch11.MapMode = "FlatFace"
sketch11.AttachmentOffset = App.Placement(V(0, 0, -226.5), App.Rotation())
sketch11.addGeometry([
    Part.Circle(V(69.1, 15.5, 0), V(0, 0, 1), 1.75),  # 0
    Part.Circle(V(38.1, 15.5, 0), V(0, 0, 1), 1.75),  # 1
    Part.Circle(V(38.1, -15.5, 0), V(0, 0, 1), 1.75),  # 2
    Part.Circle(V(69.1, -15.5, 0), V(0, 0, 1), 1.75),  # 3
    Part.Circle(V(53.6, 0, 0), V(0, 0, 1), 11.5),  # 4
], False)
sketch11.addConstraint([
    Sketcher.Constraint("Equal", 0, 1),
    Sketcher.Constraint("Equal", 1, 2),
    Sketcher.Constraint("Equal", 2, 3),
    Sketcher.Constraint("Symmetric", 1, 3, 2, 3, -1),
    Sketcher.Constraint("Symmetric", 0, 3, 3, 3, -1),
    Sketcher.Constraint("PointOnObject", 4, 3, -1),
    Sketcher.Constraint("Horizontal", 0, 3, 1, 3),
    Sketcher.Constraint("Diameter", 4, 23.0),
    Sketcher.Constraint("Diameter", 0, 3.5),
    Sketcher.Constraint("DistanceX", 1, 3, 0, 3, 31.0),
    Sketcher.Constraint("DistanceY", 2, 3, 1, 3, 31.0),
    Sketcher.Constraint("DistanceX", -1, 1, 0, 3, 69.1),
    Sketcher.Constraint("DistanceX", -1, 1, 4, 3, 53.6),
])
sketch11.setExpression("Constraints[7]", "Params.sketch11_diameter")
sketch11.setExpression("Constraints[8]", "Params.sketch11_diameter2")
pocket5 = doc.addObject("PartDesign::Pocket", "Pocket004")
body2.addObject(pocket5)
pocket5.Profile = sketch11
pocket5.setExpression("Length", "Params.pocket5_length")
pocket5.Reversed = True

# Sketch on XZ plane
sketch12 = doc.addObject("Sketcher::SketchObject", "Sketch011")
body2.addObject(sketch12)
sketch12.AttachmentSupport = (doc.getObject("XZ_Plane001"), [""])
sketch12.MapMode = "FlatFace"
sketch12.AttachmentOffset = App.Placement(V(0, 0, -218), App.Rotation())
sketch12.addGeometry([
    Part.Circle(V(38.1, 15.5, 0), V(0, 0, 1), 3),  # 0
    Part.Circle(V(38.1, 15.5, 0), V(0, 0, 1), 1.75),  # 1
    Part.Circle(V(69.1, 15.5, 0), V(0, 0, 1), 3),  # 2
    Part.Circle(V(69.1, 15.5, 0), V(0, 0, 1), 1.75),  # 3
    Part.Circle(V(69.1, -15.5, 0), V(0, 0, 1), 3),  # 4
    Part.Circle(V(69.1, -15.5, 0), V(0, 0, 1), 1.75),  # 5
    Part.Circle(V(38.1, -15.5, 0), V(0, 0, 1), 3),  # 6
    Part.Circle(V(38.1, -15.5, 0), V(0, 0, 1), 1.75),  # 7
    Part.Circle(V(53.6, 0, 0), V(0, 0, 1), 11.5),  # 8
], False)
sketch12.addConstraint([
    Sketcher.Constraint("Coincident", 1, 3, 0, 3),
    Sketcher.Constraint("Coincident", 3, 3, 2, 3),
    Sketcher.Constraint("Coincident", 5, 3, 4, 3),
    Sketcher.Constraint("Coincident", 7, 3, 6, 3),
    Sketcher.Constraint("Equal", 0, 2),
    Sketcher.Constraint("Equal", 1, 3),
    Sketcher.Constraint("Equal", 2, 4),
    Sketcher.Constraint("Equal", 3, 5),
    Sketcher.Constraint("Equal", 4, 6),
    Sketcher.Constraint("Equal", 5, 7),
    Sketcher.Constraint("Symmetric", 2, 3, 4, 3, -1),
    Sketcher.Constraint("Symmetric", 0, 3, 6, 3, -1),
    Sketcher.Constraint("PointOnObject", 8, 3, -1),
    Sketcher.Constraint("Horizontal", 1, 3, 2, 3),
    Sketcher.Constraint("Diameter", 0, 6.0),
    Sketcher.Constraint("Diameter", 8, 23.0),
    Sketcher.Constraint("Diameter", 1, 3.5),
    Sketcher.Constraint("DistanceX", 0, 3, 2, 3, 31.0),
    Sketcher.Constraint("DistanceY", 4, 3, 2, 3, 31.0),
    Sketcher.Constraint("DistanceX", -1, 1, 0, 3, 38.1),
    Sketcher.Constraint("DistanceX", -1, 1, 8, 3, 53.6),
])
sketch12.setExpression("Constraints[14]", "Params.sketch12_diameter")
sketch12.setExpression("Constraints[15]", "Params.sketch12_diameter2")
sketch12.setExpression("Constraints[16]", "Params.sketch12_diameter3")
pocket6 = doc.addObject("PartDesign::Pocket", "Pocket005")
body2.addObject(pocket6)
pocket6.Profile = sketch12
pocket6.setExpression("Length", "Params.pocket6_length")
pocket6.Reversed = True
body3 = doc.addObject("PartDesign::Body", "Body002")

# Sketch on YZ plane
sketch13 = doc.addObject("Sketcher::SketchObject", "Sketch012")
body3.addObject(sketch13)
sketch13.AttachmentSupport = (doc.getObject("YZ_Plane002"), [""])
sketch13.MapMode = "FlatFace"
sketch13.AttachmentOffset = App.Placement(V(0, 0, 21.3), App.Rotation())
sketch13.addGeometry([
    Part.LineSegment(V(331, -9.905396, 0), V(331, -40.5, 0)),  # 0
    Part.LineSegment(V(331, -40.5, 0), V(230, -40.5, 0)),  # 1
    Part.LineSegment(V(230, -40.5, 0), V(230, 40.5, 0)),  # 2
    Part.LineSegment(V(230, 40.5, 0), V(331, 40.5, 0)),  # 3
    Part.LineSegment(V(331, 40.5, 0), V(331, 9.905396, 0)),  # 4
    Part.ArcOfCircle(Part.Circle(V(332.37227, 0, 0), V(0, 0, 1), 10), math.radians(97.887414), math.radians(262.112586)),  # 5
    Part.Circle(V(261, -27, 0), V(0, 0, 1), 2.75),  # 6
    Part.Circle(V(261, 27, 0), V(0, 0, 1), 2.75),  # 7
    Part.Circle(V(321, -27, 0), V(0, 0, 1), 2.75),  # 8
    Part.Circle(V(321, 27, 0), V(0, 0, 1), 2.75),  # 9
], False)
sketch13.addConstraint([
    Sketcher.Constraint("Coincident", 0, 2, 1, 1),
    Sketcher.Constraint("Coincident", 1, 2, 2, 1),
    Sketcher.Constraint("Coincident", 2, 2, 3, 1),
    Sketcher.Constraint("Coincident", 3, 2, 4, 1),
    Sketcher.Constraint("Coincident", 4, 2, 5, 1),
    Sketcher.Constraint("Coincident", 5, 2, 0, 1),
    Sketcher.Constraint("Vertical", 0),
    Sketcher.Constraint("Horizontal", 1),
    Sketcher.Constraint("Vertical", 2),
    Sketcher.Constraint("Horizontal", 3),
    Sketcher.Constraint("Vertical", 4),
    Sketcher.Constraint("Equal", 6, 7),
    Sketcher.Constraint("Equal", 7, 8),
    Sketcher.Constraint("Equal", 8, 9),
    Sketcher.Constraint("Symmetric", 6, 3, 7, 3, -1),
    Sketcher.Constraint("Symmetric", 8, 3, 9, 3, -1),
    Sketcher.Constraint("Symmetric", 0, 2, 3, 2, -1),
    Sketcher.Constraint("PointOnObject", 5, 3, -1),
    Sketcher.Constraint("Horizontal", 6, 3, 8, 3),
    Sketcher.Constraint("Radius", 5, 10.0),
    Sketcher.Constraint("Diameter", 6, 5.5),
    Sketcher.Constraint("DistanceX", 1, 2, 1, 1, 101.0),
    Sketcher.Constraint("DistanceY", 2, 1, 2, 2, 81.0),
    Sketcher.Constraint("DistanceX", -1, 1, 6, 3, 261.0),
    Sketcher.Constraint("DistanceY", 6, 3, -1, 1, 27.0),
    Sketcher.Constraint("DistanceX", -1, 1, 8, 3, 321.0),
    Sketcher.Constraint("DistanceX", -1, 1, 0, 2, 331.0),
    Sketcher.Constraint("DistanceY", 0, 2, 0, 1, 30.594604),
])
sketch13.setExpression("Constraints[19]", "Params.sketch13_radius")
sketch13.setExpression("Constraints[20]", "Params.sketch13_diameter")
sketch13.setExpression("Constraints[21]", "Params.sketch13_width")
sketch13.setExpression("Constraints[22]", "Params.sketch13_height")
pad7 = doc.addObject("PartDesign::Pad", "Pad006")
body3.addObject(pad7)
pad7.Profile = sketch13
pad7.setExpression("Length", "Params.pad7_length")

# Sketch on YZ plane
sketch14 = doc.addObject("Sketcher::SketchObject", "Sketch013")
body3.addObject(sketch14)
sketch14.AttachmentSupport = (doc.getObject("YZ_Plane002"), [""])
sketch14.MapMode = "FlatFace"
sketch14.AttachmentOffset = App.Placement(V(0, 0, 26.8), App.Rotation())
sketch14.addGeometry([
    Part.LineSegment(V(331, -9.905396, 0), V(331, -40.5, 0)),  # 0
    Part.LineSegment(V(331, -40.5, 0), V(230, -40.5, 0)),  # 1
    Part.LineSegment(V(230, -40.5, 0), V(230, 40.5, 0)),  # 2
    Part.LineSegment(V(230, 40.5, 0), V(331, 40.5, 0)),  # 3
    Part.LineSegment(V(331, 40.5, 0), V(331, 9.905396, 0)),  # 4
    Part.ArcOfCircle(Part.Circle(V(332.37227, 0, 0), V(0, 0, 1), 10), math.radians(97.887414), math.radians(262.112586)),  # 5
    Part.Circle(V(261, -27, 0), V(0, 0, 1), 4.8),  # 6
    Part.Circle(V(261, 27, 0), V(0, 0, 1), 4.8),  # 7
    Part.Circle(V(321, -27, 0), V(0, 0, 1), 4.8),  # 8
    Part.Circle(V(321, 27, 0), V(0, 0, 1), 4.8),  # 9
], False)
sketch14.addConstraint([
    Sketcher.Constraint("Coincident", 0, 2, 1, 1),
    Sketcher.Constraint("Coincident", 1, 2, 2, 1),
    Sketcher.Constraint("Coincident", 2, 2, 3, 1),
    Sketcher.Constraint("Coincident", 3, 2, 4, 1),
    Sketcher.Constraint("Coincident", 4, 2, 5, 1),
    Sketcher.Constraint("Coincident", 5, 2, 0, 1),
    Sketcher.Constraint("Vertical", 0),
    Sketcher.Constraint("Horizontal", 1),
    Sketcher.Constraint("Vertical", 2),
    Sketcher.Constraint("Horizontal", 3),
    Sketcher.Constraint("Vertical", 4),
    Sketcher.Constraint("Equal", 6, 7),
    Sketcher.Constraint("Equal", 7, 8),
    Sketcher.Constraint("Equal", 8, 9),
    Sketcher.Constraint("Symmetric", 6, 3, 7, 3, -1),
    Sketcher.Constraint("Symmetric", 8, 3, 9, 3, -1),
    Sketcher.Constraint("Symmetric", 0, 2, 3, 2, -1),
    Sketcher.Constraint("PointOnObject", 5, 3, -1),
    Sketcher.Constraint("Horizontal", 6, 3, 8, 3),
    Sketcher.Constraint("Radius", 5, 10.0),
    Sketcher.Constraint("Diameter", 6, 9.6),
    Sketcher.Constraint("DistanceX", 1, 2, 1, 1, 101.0),
    Sketcher.Constraint("DistanceY", 2, 1, 2, 2, 81.0),
    Sketcher.Constraint("DistanceX", -1, 1, 6, 3, 261.0),
    Sketcher.Constraint("DistanceY", 6, 3, -1, 1, 27.0),
    Sketcher.Constraint("DistanceX", -1, 1, 8, 3, 321.0),
    Sketcher.Constraint("DistanceX", -1, 1, 0, 2, 331.0),
    Sketcher.Constraint("DistanceY", 0, 2, 0, 1, 30.594604),
])
sketch14.setExpression("Constraints[19]", "Params.sketch14_radius")
sketch14.setExpression("Constraints[20]", "Params.sketch14_diameter")
sketch14.setExpression("Constraints[21]", "Params.sketch14_width")
sketch14.setExpression("Constraints[22]", "Params.sketch14_height")
pad8 = doc.addObject("PartDesign::Pad", "Pad007")
body3.addObject(pad8)
pad8.Profile = sketch14
pad8.setExpression("Length", "Params.pad8_length")
body4 = doc.addObject("PartDesign::Body", "Body003")

# Sketch on YZ plane
sketch15 = doc.addObject("Sketcher::SketchObject", "Sketch014")
body4.addObject(sketch15)
sketch15.AttachmentSupport = (doc.getObject("YZ_Plane003"), [""])
sketch15.MapMode = "FlatFace"
sketch15.AttachmentOffset = App.Placement(V(0, 0, 28.8), App.Rotation())
sketch15.addGeometry([
    Part.LineSegment(V(316, 40.5, 0), V(310, 40.5, 0)),
    Part.LineSegment(V(310, 40.5, 0), V(310, -40.5, 0)),
    Part.LineSegment(V(310, -40.5, 0), V(316, -40.5, 0)),
    Part.LineSegment(V(316, -40.5, 0), V(316, 40.5, 0)),
], False)
sketch15.addConstraint([
    Sketcher.Constraint("Coincident", 0, 2, 1, 1),
    Sketcher.Constraint("Coincident", 1, 2, 2, 1),
    Sketcher.Constraint("Coincident", 2, 2, 3, 1),
    Sketcher.Constraint("Coincident", 3, 2, 0, 1),
    Sketcher.Constraint("Horizontal", 0),
    Sketcher.Constraint("Vertical", 1),
    Sketcher.Constraint("Horizontal", 2),
    Sketcher.Constraint("Vertical", 3),
    Sketcher.Constraint("DistanceX", 0, 2, 0, 1, 6.0),
    Sketcher.Constraint("DistanceY", 1, 2, 1, 1, 81.0),
    Sketcher.Constraint("DistanceX", -1, 1, 0, 2, 310.0),
    Sketcher.Constraint("DistanceY", -1, 1, 0, 2, 40.5),
])
sketch15.setExpression("Constraints[8]", "Params.sketch15_width")
sketch15.setExpression("Constraints[9]", "Params.sketch15_height")
pad9 = doc.addObject("PartDesign::Pad", "Pad008")
body4.addObject(pad9)
pad9.Profile = sketch15
pad9.setExpression("Length", "Params.pad9_length")

doc.recompute()
